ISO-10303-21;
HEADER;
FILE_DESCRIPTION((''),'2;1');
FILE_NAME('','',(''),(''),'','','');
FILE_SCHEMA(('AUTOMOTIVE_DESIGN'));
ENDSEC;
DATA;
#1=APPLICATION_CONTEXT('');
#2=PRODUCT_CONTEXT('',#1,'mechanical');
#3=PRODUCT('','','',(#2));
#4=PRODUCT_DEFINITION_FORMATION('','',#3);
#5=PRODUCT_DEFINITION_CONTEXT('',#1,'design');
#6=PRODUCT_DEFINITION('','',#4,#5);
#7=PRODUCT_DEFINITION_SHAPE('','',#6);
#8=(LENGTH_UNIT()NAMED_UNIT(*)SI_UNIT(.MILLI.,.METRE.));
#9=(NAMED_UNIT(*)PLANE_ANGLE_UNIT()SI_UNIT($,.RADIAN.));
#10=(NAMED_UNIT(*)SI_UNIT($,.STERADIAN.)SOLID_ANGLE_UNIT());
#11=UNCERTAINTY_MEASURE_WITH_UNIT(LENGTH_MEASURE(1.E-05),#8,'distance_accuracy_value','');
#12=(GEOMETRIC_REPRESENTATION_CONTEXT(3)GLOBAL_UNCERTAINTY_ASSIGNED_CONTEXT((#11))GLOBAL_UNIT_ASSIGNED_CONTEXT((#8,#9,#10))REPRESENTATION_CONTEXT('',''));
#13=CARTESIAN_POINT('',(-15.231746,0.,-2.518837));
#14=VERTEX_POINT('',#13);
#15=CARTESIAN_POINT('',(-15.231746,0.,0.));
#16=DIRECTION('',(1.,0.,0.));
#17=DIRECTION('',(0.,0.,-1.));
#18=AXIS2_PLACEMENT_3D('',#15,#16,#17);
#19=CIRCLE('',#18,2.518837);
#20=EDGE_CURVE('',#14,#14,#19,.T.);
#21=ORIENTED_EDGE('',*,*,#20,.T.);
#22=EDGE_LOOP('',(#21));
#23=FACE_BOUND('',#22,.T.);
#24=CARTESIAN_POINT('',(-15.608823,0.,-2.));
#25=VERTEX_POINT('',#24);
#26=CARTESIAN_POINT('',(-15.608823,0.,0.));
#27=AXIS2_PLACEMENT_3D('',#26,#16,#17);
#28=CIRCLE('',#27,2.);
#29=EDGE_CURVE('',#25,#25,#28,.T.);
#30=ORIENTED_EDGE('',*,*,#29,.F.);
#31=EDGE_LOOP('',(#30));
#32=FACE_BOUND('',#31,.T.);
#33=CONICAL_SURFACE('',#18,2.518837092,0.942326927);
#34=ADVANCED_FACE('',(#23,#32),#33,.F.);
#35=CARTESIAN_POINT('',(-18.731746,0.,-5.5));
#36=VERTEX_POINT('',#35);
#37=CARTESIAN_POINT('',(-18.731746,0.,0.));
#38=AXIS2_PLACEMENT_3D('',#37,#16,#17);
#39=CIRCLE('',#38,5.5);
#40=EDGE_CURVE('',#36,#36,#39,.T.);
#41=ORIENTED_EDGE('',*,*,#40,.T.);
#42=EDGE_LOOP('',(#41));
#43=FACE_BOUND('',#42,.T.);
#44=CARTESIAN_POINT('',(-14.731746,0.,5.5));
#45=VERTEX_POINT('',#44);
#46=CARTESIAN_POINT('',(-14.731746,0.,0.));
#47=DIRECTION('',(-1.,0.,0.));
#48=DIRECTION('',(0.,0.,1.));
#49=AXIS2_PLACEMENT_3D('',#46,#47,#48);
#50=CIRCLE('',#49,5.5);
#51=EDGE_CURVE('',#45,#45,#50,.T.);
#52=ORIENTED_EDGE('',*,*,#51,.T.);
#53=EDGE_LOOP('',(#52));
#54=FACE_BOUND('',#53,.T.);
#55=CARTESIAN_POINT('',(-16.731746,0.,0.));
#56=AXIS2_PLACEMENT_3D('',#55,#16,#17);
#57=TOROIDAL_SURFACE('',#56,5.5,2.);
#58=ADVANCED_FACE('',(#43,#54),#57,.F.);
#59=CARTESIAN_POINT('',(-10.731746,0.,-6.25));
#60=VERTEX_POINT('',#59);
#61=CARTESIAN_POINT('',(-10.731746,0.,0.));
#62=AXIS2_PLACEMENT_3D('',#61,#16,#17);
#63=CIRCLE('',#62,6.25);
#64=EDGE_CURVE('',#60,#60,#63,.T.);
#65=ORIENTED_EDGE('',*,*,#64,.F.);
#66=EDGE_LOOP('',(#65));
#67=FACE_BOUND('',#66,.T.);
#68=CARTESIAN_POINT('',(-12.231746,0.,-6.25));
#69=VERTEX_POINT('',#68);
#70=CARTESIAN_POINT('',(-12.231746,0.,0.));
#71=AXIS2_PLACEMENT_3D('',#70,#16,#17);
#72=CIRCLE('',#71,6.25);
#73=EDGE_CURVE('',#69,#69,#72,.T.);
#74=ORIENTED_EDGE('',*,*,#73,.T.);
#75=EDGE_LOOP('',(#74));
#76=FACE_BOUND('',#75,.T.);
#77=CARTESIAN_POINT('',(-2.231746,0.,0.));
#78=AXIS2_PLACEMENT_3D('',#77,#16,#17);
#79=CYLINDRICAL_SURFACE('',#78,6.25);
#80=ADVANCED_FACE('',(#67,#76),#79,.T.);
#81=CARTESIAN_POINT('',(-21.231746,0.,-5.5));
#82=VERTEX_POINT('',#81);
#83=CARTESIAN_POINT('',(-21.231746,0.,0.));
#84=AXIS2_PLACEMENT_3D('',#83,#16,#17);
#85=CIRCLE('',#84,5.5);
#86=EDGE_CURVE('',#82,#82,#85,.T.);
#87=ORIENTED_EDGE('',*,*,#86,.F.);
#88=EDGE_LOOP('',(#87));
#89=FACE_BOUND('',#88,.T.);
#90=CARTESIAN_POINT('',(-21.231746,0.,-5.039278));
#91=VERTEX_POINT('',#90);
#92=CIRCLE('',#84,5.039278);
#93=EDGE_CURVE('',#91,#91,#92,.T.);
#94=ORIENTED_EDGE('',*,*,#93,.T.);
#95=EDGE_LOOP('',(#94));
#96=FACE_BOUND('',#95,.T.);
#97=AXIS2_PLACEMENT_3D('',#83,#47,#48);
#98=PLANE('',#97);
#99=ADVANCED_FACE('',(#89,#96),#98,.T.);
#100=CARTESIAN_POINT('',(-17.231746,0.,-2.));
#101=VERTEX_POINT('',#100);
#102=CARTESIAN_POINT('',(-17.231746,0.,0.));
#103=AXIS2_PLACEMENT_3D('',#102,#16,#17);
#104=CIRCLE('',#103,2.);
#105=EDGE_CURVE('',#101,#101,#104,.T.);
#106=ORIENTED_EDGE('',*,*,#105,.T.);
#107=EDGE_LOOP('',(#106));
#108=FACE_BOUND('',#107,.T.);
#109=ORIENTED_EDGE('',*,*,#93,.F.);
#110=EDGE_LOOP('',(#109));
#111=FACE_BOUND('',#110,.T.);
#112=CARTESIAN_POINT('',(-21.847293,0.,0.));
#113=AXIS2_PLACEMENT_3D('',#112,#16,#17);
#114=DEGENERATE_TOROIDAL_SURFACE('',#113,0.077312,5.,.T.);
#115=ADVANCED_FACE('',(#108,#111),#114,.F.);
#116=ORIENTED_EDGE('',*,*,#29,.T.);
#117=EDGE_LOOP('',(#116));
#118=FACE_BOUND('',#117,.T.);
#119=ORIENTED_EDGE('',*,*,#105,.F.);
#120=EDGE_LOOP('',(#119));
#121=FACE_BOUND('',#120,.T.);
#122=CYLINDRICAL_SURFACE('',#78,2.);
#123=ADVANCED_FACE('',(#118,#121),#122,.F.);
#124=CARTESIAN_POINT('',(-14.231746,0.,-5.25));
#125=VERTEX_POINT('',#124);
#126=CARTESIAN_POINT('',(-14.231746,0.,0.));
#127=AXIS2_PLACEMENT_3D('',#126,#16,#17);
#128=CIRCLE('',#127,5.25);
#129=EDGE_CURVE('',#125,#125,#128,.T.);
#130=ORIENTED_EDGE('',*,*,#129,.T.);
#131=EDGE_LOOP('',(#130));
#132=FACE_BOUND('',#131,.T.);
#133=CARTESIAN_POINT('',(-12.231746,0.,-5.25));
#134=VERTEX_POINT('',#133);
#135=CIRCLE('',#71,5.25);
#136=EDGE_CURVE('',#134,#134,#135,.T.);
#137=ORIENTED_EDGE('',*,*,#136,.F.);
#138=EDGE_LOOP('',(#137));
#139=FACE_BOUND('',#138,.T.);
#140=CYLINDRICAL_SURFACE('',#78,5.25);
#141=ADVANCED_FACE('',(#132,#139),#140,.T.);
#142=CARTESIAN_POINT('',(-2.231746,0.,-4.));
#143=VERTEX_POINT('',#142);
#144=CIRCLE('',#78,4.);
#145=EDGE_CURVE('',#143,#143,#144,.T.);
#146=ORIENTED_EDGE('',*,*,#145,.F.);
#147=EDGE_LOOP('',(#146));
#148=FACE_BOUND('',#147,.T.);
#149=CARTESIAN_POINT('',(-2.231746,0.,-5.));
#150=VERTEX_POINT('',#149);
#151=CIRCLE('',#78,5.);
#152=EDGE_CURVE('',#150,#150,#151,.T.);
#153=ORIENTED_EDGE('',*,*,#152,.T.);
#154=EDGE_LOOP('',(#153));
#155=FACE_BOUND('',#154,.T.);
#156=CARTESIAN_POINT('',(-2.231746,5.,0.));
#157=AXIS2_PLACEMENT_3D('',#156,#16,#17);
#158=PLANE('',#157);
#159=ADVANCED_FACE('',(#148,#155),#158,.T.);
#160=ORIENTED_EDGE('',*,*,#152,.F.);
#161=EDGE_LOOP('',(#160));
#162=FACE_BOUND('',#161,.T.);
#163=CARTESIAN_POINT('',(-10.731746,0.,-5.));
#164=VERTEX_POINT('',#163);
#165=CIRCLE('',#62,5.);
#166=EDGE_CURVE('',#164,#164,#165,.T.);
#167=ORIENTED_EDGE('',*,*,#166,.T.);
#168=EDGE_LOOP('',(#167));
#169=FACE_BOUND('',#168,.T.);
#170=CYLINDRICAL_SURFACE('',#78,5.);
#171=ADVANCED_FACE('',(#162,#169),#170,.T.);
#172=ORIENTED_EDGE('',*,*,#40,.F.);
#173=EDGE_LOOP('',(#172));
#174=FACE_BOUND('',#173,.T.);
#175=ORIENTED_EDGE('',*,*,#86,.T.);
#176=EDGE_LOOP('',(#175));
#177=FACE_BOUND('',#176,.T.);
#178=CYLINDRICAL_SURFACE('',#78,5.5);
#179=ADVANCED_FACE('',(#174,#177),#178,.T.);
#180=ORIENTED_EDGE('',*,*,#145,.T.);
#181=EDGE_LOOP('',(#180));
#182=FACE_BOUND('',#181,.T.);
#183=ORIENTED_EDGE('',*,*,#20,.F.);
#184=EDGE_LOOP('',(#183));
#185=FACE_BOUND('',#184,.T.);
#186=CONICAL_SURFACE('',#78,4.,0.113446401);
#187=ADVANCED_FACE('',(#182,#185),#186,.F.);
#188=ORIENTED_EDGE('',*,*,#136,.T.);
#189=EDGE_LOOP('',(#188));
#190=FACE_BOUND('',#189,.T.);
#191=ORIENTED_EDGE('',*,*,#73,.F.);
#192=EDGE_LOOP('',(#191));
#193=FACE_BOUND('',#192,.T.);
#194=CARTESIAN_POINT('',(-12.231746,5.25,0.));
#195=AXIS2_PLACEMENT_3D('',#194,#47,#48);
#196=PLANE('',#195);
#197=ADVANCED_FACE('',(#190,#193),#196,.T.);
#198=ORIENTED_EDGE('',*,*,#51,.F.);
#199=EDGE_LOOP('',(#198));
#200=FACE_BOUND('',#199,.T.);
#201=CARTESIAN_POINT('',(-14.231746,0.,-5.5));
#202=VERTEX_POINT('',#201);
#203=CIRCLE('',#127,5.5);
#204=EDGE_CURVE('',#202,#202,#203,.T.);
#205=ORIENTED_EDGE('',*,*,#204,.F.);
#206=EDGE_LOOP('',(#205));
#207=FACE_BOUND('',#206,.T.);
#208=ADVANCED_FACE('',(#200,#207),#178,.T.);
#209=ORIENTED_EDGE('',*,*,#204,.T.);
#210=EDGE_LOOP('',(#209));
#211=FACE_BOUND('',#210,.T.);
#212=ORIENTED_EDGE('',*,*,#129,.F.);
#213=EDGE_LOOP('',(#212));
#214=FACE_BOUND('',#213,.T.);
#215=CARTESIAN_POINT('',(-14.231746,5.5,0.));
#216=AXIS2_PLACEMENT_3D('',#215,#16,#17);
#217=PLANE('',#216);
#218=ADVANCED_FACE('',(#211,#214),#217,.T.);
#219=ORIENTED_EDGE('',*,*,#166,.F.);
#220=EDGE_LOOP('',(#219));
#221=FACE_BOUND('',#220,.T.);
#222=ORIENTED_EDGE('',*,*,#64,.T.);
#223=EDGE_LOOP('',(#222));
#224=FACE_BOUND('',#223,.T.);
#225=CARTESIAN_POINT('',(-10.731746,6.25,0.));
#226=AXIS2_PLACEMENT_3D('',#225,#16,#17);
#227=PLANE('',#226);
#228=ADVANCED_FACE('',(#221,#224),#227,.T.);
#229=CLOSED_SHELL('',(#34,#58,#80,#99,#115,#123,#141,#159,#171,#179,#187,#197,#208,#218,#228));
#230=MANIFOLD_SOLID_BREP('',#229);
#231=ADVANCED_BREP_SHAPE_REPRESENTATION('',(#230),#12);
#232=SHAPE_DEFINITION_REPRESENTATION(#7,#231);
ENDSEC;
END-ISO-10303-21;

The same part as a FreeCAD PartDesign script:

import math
import FreeCAD as App
import Part
import Sketcher
Q = App.Units.Quantity

doc = App.newDocument("Part")
body = doc.addObject("PartDesign::Body", "Body")

# Sketch on XY plane
sketch1 = body.newObject("Sketcher::SketchObject", "Sketch")
sketch1.AttachmentSupport = (doc.getObject("XY_Plane"), [""])
sketch1.MapMode = "FlatFace"
sketch1.addGeometry(Part.LineSegment(App.Vector(-21.231746, 0, 0), App.Vector(-2.231746, 0, 0)), False)
sketch1.addGeometry(Part.LineSegment(App.Vector(-2.231746, 0, 0), App.Vector(-2.231746, 5, 0)), False)
sketch1.addGeometry(Part.LineSegment(App.Vector(-2.231746, 5, 0), App.Vector(-10.731746, 5, 0)), False)
sketch1.addGeometry(Part.LineSegment(App.Vector(-10.731746, 5, 0), App.Vector(-10.731746, 6.25, 0)), False)
sketch1.addGeometry(Part.LineSegment(App.Vector(-10.731746, 6.25, 0), App.Vector(-12.231746, 6.25, 0)), False)
sketch1.addGeometry(Part.LineSegment(App.Vector(-12.231746, 6.25, 0), App.Vector(-12.231746, 5.25, 0)), False)
sketch1.addGeometry(Part.LineSegment(App.Vector(-12.231746, 5.25, 0), App.Vector(-14.231746, 5.25, 0)), False)
sketch1.addGeometry(Part.LineSegment(App.Vector(-14.231746, 5.25, 0), App.Vector(-14.231746, 5.5, 0)), False)
sketch1.addGeometry(Part.LineSegment(App.Vector(-14.231746, 5.5, 0), App.Vector(-21.231746, 5.5, 0)), False)
sketch1.addGeometry(Part.LineSegment(App.Vector(-21.231746, 5.5, 0), App.Vector(-21.231746, 0, 0)), False)
sketch1.addConstraint(Sketcher.Constraint("Coincident", 0, 2, 1, 1))
sketch1.addConstraint(Sketcher.Constraint("Coincident", 1, 2, 2, 1))
sketch1.addConstraint(Sketcher.Constraint("Coincident", 2, 2, 3, 1))
sketch1.addConstraint(Sketcher.Constraint("Coincident", 3, 2, 4, 1))
sketch1.addConstraint(Sketcher.Constraint("Coincident", 4, 2, 5, 1))
sketch1.addConstraint(Sketcher.Constraint("Coincident", 5, 2, 6, 1))
sketch1.addConstraint(Sketcher.Constraint("Coincident", 6, 2, 7, 1))
sketch1.addConstraint(Sketcher.Constraint("Coincident", 7, 2, 8, 1))
sketch1.addConstraint(Sketcher.Constraint("Coincident", 8, 2, 9, 1))
sketch1.addConstraint(Sketcher.Constraint("Coincident", 9, 2, 0, 1))
sketch1.addConstraint(Sketcher.Constraint("Horizontal", 0))
sketch1.addConstraint(Sketcher.Constraint("Vertical", 1))
sketch1.addConstraint(Sketcher.Constraint("Horizontal", 2))
sketch1.addConstraint(Sketcher.Constraint("Vertical", 3))
sketch1.addConstraint(Sketcher.Constraint("Horizontal", 4))
sketch1.addConstraint(Sketcher.Constraint("Vertical", 5))
sketch1.addConstraint(Sketcher.Constraint("Horizontal", 6))
sketch1.addConstraint(Sketcher.Constraint("Vertical", 7))
sketch1.addConstraint(Sketcher.Constraint("Horizontal", 8))
sketch1.addConstraint(Sketcher.Constraint("Vertical", 9))
sketch1.addConstraint(Sketcher.Constraint("PointOnObject", 0, 2, -1))
sketch1.addConstraint(Sketcher.Constraint("DistanceX", 0, 1, 0, 2, 19.0))
sketch1.addConstraint(Sketcher.Constraint("DistanceX", 6, 2, 6, 1, 2.0))
sketch1.addConstraint(Sketcher.Constraint("DistanceX", 8, 2, 8, 1, 7.0))
sketch1.addConstraint(Sketcher.Constraint("DistanceY", 1, 1, 1, 2, 5.0))
sketch1.addConstraint(Sketcher.Constraint("DistanceY", 5, 2, 5, 1, 1.0))
sketch1.addConstraint(Sketcher.Constraint("DistanceX", 2, 2, 2, 1, 8.5))
sketch1.addConstraint(Sketcher.Constraint("DistanceY", 9, 2, 9, 1, 5.5))
sketch1.addConstraint(Sketcher.Constraint("DistanceY", 3, 1, 3, 2, 1.25))
sketch1.addConstraint(Sketcher.Constraint("DistanceX", 0, 2, -1, 1, 2.231746))
revolution = body.newObject("PartDesign::Revolution", "Revolution")
revolution.Profile = sketch1
revolution.ReferenceAxis = (sketch1, ["H_Axis"])
revolution.Angle = 360

# Sketch on XY plane
sketch2 = body.newObject("Sketcher::SketchObject", "Sketch001")
sketch2.AttachmentSupport = (doc.getObject("XY_Plane"), [""])
sketch2.MapMode = "FlatFace"
sketch2.addGeometry(Part.Circle(App.Vector(-16.731746, 5.5, 0), App.Vector(0, 0, 1), 2), False)
sketch2.addGeometry(Part.LineSegment(App.Vector(-21.231746, 0, 0), App.Vector(-2.231746, 0, 0)), False)
sketch2.addGeometry(Part.LineSegment(App.Vector(-2.231746, 0, 0), App.Vector(-2.231746, 4, 0)), False)
sketch2.addGeometry(Part.LineSegment(App.Vector(-2.231746, 4, 0), App.Vector(-15.231746, 2.518837, 0)), False)
sketch2.addGeometry(Part.LineSegment(App.Vector(-15.231746, 2.518837, 0), App.Vector(-15.608823, 2, 0)), False)
sketch2.addGeometry(Part.LineSegment(App.Vector(-15.608823, 2, 0), App.Vector(-17.231746, 2, 0)), False)
sketch2.addGeometry(Part.ArcOfCircle(Part.Circle(App.Vector(-21.847293, 0.077312, 0), App.Vector(0, 0, 1), 5), math.radians(22.615036), math.radians(82.928415)), False)
sketch2.addGeometry(Part.LineSegment(App.Vector(-21.231746, 5.039278, 0), App.Vector(-21.231746, 0, 0)), False)
sketch2.addConstraint(Sketcher.Constraint("Coincident", 1, 2, 2, 1))
sketch2.addConstraint(Sketcher.Constraint("Coincident", 2, 2, 3, 1))
sketch2.addConstraint(Sketcher.Constraint("Coincident", 3, 2, 4, 1))
sketch2.addConstraint(Sketcher.Constraint("Coincident", 4, 2, 5, 1))
sketch2.addConstraint(Sketcher.Constraint("Coincident", 5, 2, 6, 1))
sketch2.addConstraint(Sketcher.Constraint("Coincident", 6, 2, 7, 1))
sketch2.addConstraint(Sketcher.Constraint("Coincident", 7, 2, 1, 1))
sketch2.addConstraint(Sketcher.Constraint("Horizontal", 1))
sketch2.addConstraint(Sketcher.Constraint("Vertical", 2))
sketch2.addConstraint(Sketcher.Constraint("Horizontal", 5))
sketch2.addConstraint(Sketcher.Constraint("Vertical", 7))
sketch2.addConstraint(Sketcher.Constraint("PointOnObject", 1, 2, -1))
sketch2.addConstraint(Sketcher.Constraint("Diameter", 0, 4.0))
sketch2.addConstraint(Sketcher.Constraint("Radius", 6, 5.0))
sketch2.addConstraint(Sketcher.Constraint("DistanceX", 1, 1, 1, 2, 19.0))
sketch2.addConstraint(Sketcher.Constraint("DistanceY", 2, 1, 2, 2, 4.0))
sketch2.addConstraint(Sketcher.Constraint("DistanceY", -1, 1, 4, 2, 2.0))
sketch2.addConstraint(Sketcher.Constraint("Angle", 3, Q("-173.5 deg")))
sketch2.addConstraint(Sketcher.Constraint("DistanceX", 3, 2, 2, 2, 13.0))
sketch2.addConstraint(Sketcher.Constraint("DistanceX", 5, 2, 3, 2, 2.0))
sketch2.addConstraint(Sketcher.Constraint("DistanceY", -1, 1, 0, 3, 5.5))
sketch2.addConstraint(Sketcher.Constraint("DistanceX", 0, 3, 1, 2, 14.5))
sketch2.addConstraint(Sketcher.Constraint("Distance", 4, 0.641388))
sketch2.addConstraint(Sketcher.Constraint("DistanceY", 7, 2, 7, 1, 5.039278))
sketch2.addConstraint(Sketcher.Constraint("DistanceX", 0, 3, -1, 1, 16.731746))
groove = body.newObject("PartDesign::Groove", "Groove")
groove.Profile = sketch2
groove.ReferenceAxis = (sketch2, ["H_Axis"])
groove.Angle = 360

doc.recompute()
